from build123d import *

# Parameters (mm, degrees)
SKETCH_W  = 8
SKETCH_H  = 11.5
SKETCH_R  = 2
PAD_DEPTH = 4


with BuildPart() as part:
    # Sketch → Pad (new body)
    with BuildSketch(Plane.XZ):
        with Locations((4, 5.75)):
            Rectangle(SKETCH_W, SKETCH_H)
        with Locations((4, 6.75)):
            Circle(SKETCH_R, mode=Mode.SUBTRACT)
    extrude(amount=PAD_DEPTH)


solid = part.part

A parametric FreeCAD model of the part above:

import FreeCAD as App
import Part
import Sketcher

V = App.Vector
Q = App.Units.Quantity


def add_polygon(sketch, points):
    """Adds a closed chain of lines whose ends are joined by coincident constraints."""
    first, n = sketch.GeometryCount, len(points)
    for a, b in zip(points, points[1:] + points[:1]):
        sketch.addGeometry(Part.LineSegment(App.Vector(*a, 0), App.Vector(*b, 0)), False)
    for i in range(n):
        sketch.addConstraint(Sketcher.Constraint("Coincident", first + i, 2, first + (i + 1) % n, 1))

doc = App.newDocument("Part")
body = doc.addObject("PartDesign::Body", "Body")

sketch1 = doc.addObject("Sketcher::SketchObject", "Sketch")
body.addObject(sketch1)
sketch1.AttachmentSupport = (doc.XZ_Plane, [""])
sketch1.MapMode = "FlatFace"
add_polygon(sketch1, [(0, 11.5), (0, 0), (8, 0), (8, 11.5)])
sketch1.addGeometry(Part.Circle(V(4, 6.75, 0), V(0, 0, 1), 2), False)
sketch1.addConstraint([
    Sketcher.Constraint("Vertical", 0),
    Sketcher.Constraint("Horizontal", 1),
    Sketcher.Constraint("Vertical", 2),
    Sketcher.Constraint("Horizontal", 3),
    Sketcher.Constraint("Coincident", 0, 2, -1, 1),
    Sketcher.Constraint("Diameter", 4, Q("4 mm")),
    Sketcher.Constraint("DistanceX", 1, 1, 1, 2, Q("8 mm")),
    Sketcher.Constraint("DistanceY", 0, 2, 0, 1, Q("11.5 mm")),
    Sketcher.Constraint("DistanceX", -1, 1, 4, 3, Q("4 mm")),
    Sketcher.Constraint("DistanceY", -1, 1, 4, 3, Q("6.75 mm")),
])
pad1 = doc.addObject("PartDesign::Pad", "Pad")
body.addObject(pad1)
pad1.Profile = sketch1
pad1.Length = 4

doc.recompute()
